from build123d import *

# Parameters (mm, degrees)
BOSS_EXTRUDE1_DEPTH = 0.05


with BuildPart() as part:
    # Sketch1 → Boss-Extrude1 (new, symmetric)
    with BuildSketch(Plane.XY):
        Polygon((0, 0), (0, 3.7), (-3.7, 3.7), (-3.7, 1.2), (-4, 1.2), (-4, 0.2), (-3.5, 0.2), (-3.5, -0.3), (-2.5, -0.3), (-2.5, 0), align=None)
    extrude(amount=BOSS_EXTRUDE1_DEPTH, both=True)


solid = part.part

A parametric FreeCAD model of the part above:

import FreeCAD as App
import Part
import Sketcher

V = App.Vector


def add_polygon(sketch, points):
    """Adds a closed chain of lines whose ends are joined by coincident constraints."""
    first, n = sketch.GeometryCount, len(points)
    for a, b in zip(points, points[1:] + points[:1]):
        sketch.addGeometry(Part.LineSegment(App.Vector(*a, 0), App.Vector(*b, 0)), False)
    for i in range(n):
        sketch.addConstraint(Sketcher.Constraint("Coincident", first + i, 2, first + (i + 1) % n, 1))

doc = App.newDocument("Part")
body = doc.addObject("PartDesign::Body", "Body")

# Sketch on XY plane
sketch1 = body.newObject("Sketcher::SketchObject", "Sketch")
sketch1.AttachmentSupport = (doc.getObject("XY_Plane"), [""])
sketch1.MapMode = "FlatFace"
add_polygon(sketch1, [(0, 0), (0, 3.7), (-3.7, 3.7), (-3.7, 1.2), (-4, 1.2), (-4, 0.2), (-3.5, 0.2), (-3.5, -0.3), (-2.5, -0.3), (-2.5, 0)])  # lines 0-9
sketch1.addConstraint([
    Sketcher.Constraint("Vertical", 0),
    Sketcher.Constraint("Horizontal", 1),
    Sketcher.Constraint("Vertical", 2),
    Sketcher.Constraint("Horizontal", 3),
    Sketcher.Constraint("Vertical", 4),
    Sketcher.Constraint("Horizontal", 5),
    Sketcher.Constraint("Vertical", 6),
    Sketcher.Constraint("Horizontal", 7),
    Sketcher.Constraint("Vertical", 8),
    Sketcher.Constraint("Horizontal", 9),
    Sketcher.Constraint("Coincident", 9, 2, -1, 1),
    Sketcher.Constraint("Equal", 1, 0),
    Sketcher.Constraint("Equal", 9, 2),
    Sketcher.Constraint("Equal", 7, 4),
    Sketcher.Constraint("Equal", 5, 6),
    Sketcher.Constraint("DistanceX", 7, 1, 7, 2, 1.0),
    Sketcher.Constraint("DistanceX", 1, 2, 1, 1, 3.7),
    Sketcher.Constraint("DistanceX", 3, 2, 3, 1, 0.3),
    Sketcher.Constraint("DistanceX", 5, 1, 5, 2, 0.5),
])
pad1 = body.newObject("PartDesign::Pad", "Pad")
pad1.Profile = sketch1
pad1.Length = 0.1
pad1.Midplane = True

doc.recompute()
